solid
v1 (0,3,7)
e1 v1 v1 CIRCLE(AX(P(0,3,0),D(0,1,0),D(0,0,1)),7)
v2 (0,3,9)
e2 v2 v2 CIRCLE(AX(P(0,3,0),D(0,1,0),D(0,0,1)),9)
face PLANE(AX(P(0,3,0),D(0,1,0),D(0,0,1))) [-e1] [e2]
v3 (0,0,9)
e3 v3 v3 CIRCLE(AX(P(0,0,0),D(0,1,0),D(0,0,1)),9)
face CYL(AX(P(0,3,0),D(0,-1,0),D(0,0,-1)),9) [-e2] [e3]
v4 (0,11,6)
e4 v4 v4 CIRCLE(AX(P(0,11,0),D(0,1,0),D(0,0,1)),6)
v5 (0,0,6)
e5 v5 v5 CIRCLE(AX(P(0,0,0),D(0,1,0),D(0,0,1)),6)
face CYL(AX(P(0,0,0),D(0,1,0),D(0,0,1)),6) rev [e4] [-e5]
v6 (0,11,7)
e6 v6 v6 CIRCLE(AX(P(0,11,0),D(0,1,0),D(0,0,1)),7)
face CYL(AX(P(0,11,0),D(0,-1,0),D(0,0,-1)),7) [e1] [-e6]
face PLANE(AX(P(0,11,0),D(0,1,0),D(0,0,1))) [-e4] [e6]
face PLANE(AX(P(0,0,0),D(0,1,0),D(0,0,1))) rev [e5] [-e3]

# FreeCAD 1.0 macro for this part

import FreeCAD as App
import Part
import Sketcher
from FreeCAD import Vector

doc = App.newDocument("Part")
body = doc.addObject("PartDesign::Body", "Body")

# Sketch on XZ plane
sketch1 = doc.addObject("Sketcher::SketchObject", "Sketch")
body.addObject(sketch1)
sketch1.AttachmentSupport = (doc.XZ_Plane, [""])
sketch1.MapMode = "FlatFace"
sketch1.addGeometry(Part.Circle(Vector(0, 0, 0), Vector(0, 0, 1), 9), False)
sketch1.addConstraint([
    Sketcher.Constraint("Coincident", 0, 3, -1, 1),
    Sketcher.Constraint("Diameter", 0, 18.0),
])
pad1 = doc.addObject("PartDesign::Pad", "Pad")
body.addObject(pad1)
pad1.Profile = sketch1
pad1.Length = 3
pad1.Reversed = True

# Sketch on XZ plane
sketch2 = doc.addObject("Sketcher::SketchObject", "Sketch001")
body.addObject(sketch2)
sketch2.AttachmentSupport = (doc.XZ_Plane, [""])
sketch2.MapMode = "FlatFace"
sketch2.AttachmentOffset = App.Placement(Vector(0, 0, -3), App.Rotation())
sketch2.addGeometry(Part.Circle(Vector(0, 0, 0), Vector(0, 0, 1), 7), False)
sketch2.addConstraint([
    Sketcher.Constraint("Coincident", 0, 3, -1, 1),
    Sketcher.Constraint("Diameter", 0, 14.0),
])
pad2 = doc.addObject("PartDesign::Pad", "Pad001")
body.addObject(pad2)
pad2.Profile = sketch2
pad2.Length = 8
pad2.Reversed = True

# Sketch on XZ plane
sketch3 = doc.addObject("Sketcher::SketchObject", "Sketch002")
body.addObject(sketch3)
sketch3.AttachmentSupport = (doc.XZ_Plane, [""])
sketch3.MapMode = "FlatFace"
sketch3.AttachmentOffset = App.Placement(Vector(0, 0, -11), App.Rotation())
sketch3.addGeometry(Part.Circle(Vector(0, 0, 0), Vector(0, 0, 1), 6), False)
sketch3.addConstraint([
    Sketcher.Constraint("Coincident", 0, 3, -1, 1),
    Sketcher.Constraint("Diameter", 0, 12.0),
])
pocket1 = doc.addObject("PartDesign::Pocket", "Pocket")
body.addObject(pocket1)
pocket1.Profile = sketch3
pocket1.Type = "ThroughAll"
pocket1.Reversed = True

doc.recompute()
